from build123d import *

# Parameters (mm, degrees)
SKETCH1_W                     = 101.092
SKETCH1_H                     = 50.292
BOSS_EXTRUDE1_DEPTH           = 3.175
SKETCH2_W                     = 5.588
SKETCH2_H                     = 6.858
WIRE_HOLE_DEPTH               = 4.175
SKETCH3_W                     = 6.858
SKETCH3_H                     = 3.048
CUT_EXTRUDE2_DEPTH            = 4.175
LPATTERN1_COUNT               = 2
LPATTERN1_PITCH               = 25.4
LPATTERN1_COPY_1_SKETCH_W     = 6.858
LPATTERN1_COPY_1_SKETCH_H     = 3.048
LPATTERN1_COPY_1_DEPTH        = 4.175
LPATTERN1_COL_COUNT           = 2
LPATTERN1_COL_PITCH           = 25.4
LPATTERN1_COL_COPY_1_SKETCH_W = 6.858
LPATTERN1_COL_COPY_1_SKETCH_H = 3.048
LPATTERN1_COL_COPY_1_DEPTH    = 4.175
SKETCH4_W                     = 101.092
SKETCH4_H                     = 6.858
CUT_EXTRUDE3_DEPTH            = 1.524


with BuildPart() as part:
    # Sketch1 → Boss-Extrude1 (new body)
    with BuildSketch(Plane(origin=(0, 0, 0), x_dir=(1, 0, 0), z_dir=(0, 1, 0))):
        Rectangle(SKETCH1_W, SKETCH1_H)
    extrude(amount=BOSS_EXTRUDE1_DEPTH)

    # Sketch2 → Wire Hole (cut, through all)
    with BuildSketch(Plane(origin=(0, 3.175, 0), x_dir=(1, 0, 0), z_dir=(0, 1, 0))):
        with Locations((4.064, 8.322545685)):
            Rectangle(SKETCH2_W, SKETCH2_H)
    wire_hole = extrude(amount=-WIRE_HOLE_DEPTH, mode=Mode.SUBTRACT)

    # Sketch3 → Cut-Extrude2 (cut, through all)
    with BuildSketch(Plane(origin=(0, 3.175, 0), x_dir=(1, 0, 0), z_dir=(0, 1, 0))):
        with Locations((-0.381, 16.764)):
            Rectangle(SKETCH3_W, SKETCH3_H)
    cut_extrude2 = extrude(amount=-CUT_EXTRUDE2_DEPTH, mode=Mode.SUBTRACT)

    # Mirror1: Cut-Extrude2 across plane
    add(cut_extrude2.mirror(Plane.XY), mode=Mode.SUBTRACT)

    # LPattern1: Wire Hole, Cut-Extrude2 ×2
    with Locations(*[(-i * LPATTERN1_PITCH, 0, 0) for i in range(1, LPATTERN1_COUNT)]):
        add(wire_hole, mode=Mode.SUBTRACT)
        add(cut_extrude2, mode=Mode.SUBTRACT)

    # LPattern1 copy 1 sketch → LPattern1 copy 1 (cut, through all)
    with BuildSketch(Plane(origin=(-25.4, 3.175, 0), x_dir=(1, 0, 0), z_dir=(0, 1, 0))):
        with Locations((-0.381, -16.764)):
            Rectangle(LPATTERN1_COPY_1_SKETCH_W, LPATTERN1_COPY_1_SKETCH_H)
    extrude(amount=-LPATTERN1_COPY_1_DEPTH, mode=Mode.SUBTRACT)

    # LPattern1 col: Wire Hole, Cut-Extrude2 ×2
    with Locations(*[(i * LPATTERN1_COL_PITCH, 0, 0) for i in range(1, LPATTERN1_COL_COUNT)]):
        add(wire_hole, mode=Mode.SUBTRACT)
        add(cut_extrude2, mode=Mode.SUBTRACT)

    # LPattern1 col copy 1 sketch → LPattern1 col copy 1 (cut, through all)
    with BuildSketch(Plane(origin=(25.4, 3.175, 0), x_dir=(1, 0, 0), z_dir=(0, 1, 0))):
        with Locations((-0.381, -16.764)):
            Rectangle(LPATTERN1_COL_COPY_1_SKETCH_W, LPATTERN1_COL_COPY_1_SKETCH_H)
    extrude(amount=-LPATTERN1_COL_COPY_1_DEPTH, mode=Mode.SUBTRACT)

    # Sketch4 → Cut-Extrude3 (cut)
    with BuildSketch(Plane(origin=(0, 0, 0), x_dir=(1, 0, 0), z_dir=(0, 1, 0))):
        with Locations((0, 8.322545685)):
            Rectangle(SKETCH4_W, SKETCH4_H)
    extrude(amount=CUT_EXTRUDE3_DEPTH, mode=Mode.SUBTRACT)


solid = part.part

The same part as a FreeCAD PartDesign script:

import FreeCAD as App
import Part
import Sketcher

V = App.Vector
Q = App.Units.Quantity


def add_polygon(sketch, points):
    """Adds a closed chain of lines whose ends are joined by coincident constraints."""
    first, n = sketch.GeometryCount, len(points)
    for a, b in zip(points, points[1:] + points[:1]):
        sketch.addGeometry(Part.LineSegment(App.Vector(*a, 0), App.Vector(*b, 0)), False)
    for i in range(n):
        sketch.addConstraint(Sketcher.Constraint("Coincident", first + i, 2, first + (i + 1) % n, 1))

doc = App.newDocument("Part")
body = doc.addObject("PartDesign::Body", "Body")

sketch1 = body.newObject("Sketcher::SketchObject", "Sketch")
sketch1.AttachmentSupport = (doc.getObject("XZ_Plane"), [""])
sketch1.MapMode = "FlatFace"
add_polygon(sketch1, [(-51, -25), (-51, 25), (51, 25), (51, -25)])
sketch1.addConstraint(Sketcher.Constraint("Vertical", 0))
sketch1.addConstraint(Sketcher.Constraint("Horizontal", 1))
sketch1.addConstraint(Sketcher.Constraint("Vertical", 2))
sketch1.addConstraint(Sketcher.Constraint("Horizontal", 3))
sketch1.addConstraint(Sketcher.Constraint("Symmetric", 0, 2, 2, 2, -1, 1))
sketch1.addConstraint(Sketcher.Constraint("DistanceX", 1, 1, 1, 2, Q("3.98 in")))
sketch1.addConstraint(Sketcher.Constraint("DistanceY", 0, 1, 0, 2, Q("1.98 in")))
pad1 = body.newObject("PartDesign::Pad", "Pad")
pad1.Profile = sketch1
pad1.Length = Q("0.125 in")
pad1.Reversed = True

sketch2 = body.newObject("Sketcher::SketchObject", "Sketch001")
sketch2.AttachmentSupport = (doc.getObject("XZ_Plane"), [""])
sketch2.MapMode = "FlatFace"
sketch2.AttachmentOffset = App.Placement(V(0, 0, -0.125 * 25.4), App.Rotation())
add_polygon(sketch2, [(1, -12), (1, -5), (7, -5), (7, -12)])
sketch2.addConstraint(Sketcher.Constraint("Vertical", 0))
sketch2.addConstraint(Sketcher.Constraint("Horizontal", 1))
sketch2.addConstraint(Sketcher.Constraint("Vertical", 2))
sketch2.addConstraint(Sketcher.Constraint("Horizontal", 3))
sketch2.addConstraint(Sketcher.Constraint("DistanceX", 1, 1, 1, 2, Q("0.22 in")))
sketch2.addConstraint(Sketcher.Constraint("DistanceY", 0, 1, 0, 2, Q("0.27 in")))
sketch2.addConstraint(Sketcher.Constraint("DistanceX", -1, 1, 0, 2, Q("0.05 in")))
sketch2.addConstraint(Sketcher.Constraint("DistanceY", 0, 2, -1, 1, Q("4.893546 mm")))
pocket1 = body.newObject("PartDesign::Pocket", "Pocket")
pocket1.Profile = sketch2
pocket1.Type = "ThroughAll"
pocket1.Reversed = True

sketch3 = body.newObject("Sketcher::SketchObject", "Sketch002")
sketch3.AttachmentSupport = (doc.getObject("XZ_Plane"), [""])
sketch3.MapMode = "FlatFace"
sketch3.AttachmentOffset = App.Placement(V(0, 0, -0.125 * 25.4), App.Rotation())
add_polygon(sketch3, [(-3.8, -18.3), (-3.8, -15.2), (3, -15.2), (3, -18.3)])
sketch3.addConstraint(Sketcher.Constraint("Vertical", 0))
sketch3.addConstraint(Sketcher.Constraint("Horizontal", 1))
sketch3.addConstraint(Sketcher.Constraint("Vertical", 2))
sketch3.addConstraint(Sketcher.Constraint("Horizontal", 3))
sketch3.addConstraint(Sketcher.Constraint("DistanceX", 1, 1, 1, 2, Q("0.27 in")))
sketch3.addConstraint(Sketcher.Constraint("DistanceY", 0, 1, 0, 2, Q("0.12 in")))
sketch3.addConstraint(Sketcher.Constraint("DistanceY", 0, 2, -1, 1, Q("0.6 in")))
sketch3.addConstraint(Sketcher.Constraint("DistanceX", 0, 2, -1, 1, Q("0.15 in")))
pocket2 = body.newObject("PartDesign::Pocket", "Pocket001")
pocket2.Profile = sketch3
pocket2.Type = "ThroughAll"
pocket2.Reversed = True
doc.recompute()

mirrored = body.newObject("PartDesign::Mirrored", "Mirrored")
mirrored.Originals = [pocket2]
mirrored.MirrorPlane = (doc.getObject("XY_Plane"), [""])
body.Tip = mirrored
doc.recompute()

linearpattern = body.newObject("PartDesign::LinearPattern", "LinearPattern")
linearpattern.Originals = [pocket1, pocket2]
linearpattern.Direction = (doc.getObject("X_Axis"), [""])
linearpattern.Mode = "offset"
linearpattern.Offset = Q("1 in")
linearpattern.Occurrences = 2
linearpattern.Reversed = True
body.Tip = linearpattern

sketch4 = body.newObject("Sketcher::SketchObject", "Sketch003")
sketch4.AttachmentSupport = (doc.getObject("XZ_Plane"), [""])
sketch4.MapMode = "FlatFace"
sketch4.AttachmentOffset = App.Placement(V(0, 0, -0.125 * 25.4), App.Rotation())
add_polygon(sketch4, [(-29.2, 15.2), (-29.2, 18.3), (-22.4, 18.3), (-22.4, 15.2)])
sketch4.addConstraint(Sketcher.Constraint("Vertical", 0))
sketch4.addConstraint(Sketcher.Constraint("Horizontal", 1))
sketch4.addConstraint(Sketcher.Constraint("Vertical", 2))
sketch4.addConstraint(Sketcher.Constraint("Horizontal", 3))
sketch4.addConstraint(Sketcher.Constraint("DistanceX", 1, 1, 1, 2, Q("0.27 in")))
sketch4.addConstraint(Sketcher.Constraint("DistanceY", 0, 1, 0, 2, Q("0.12 in")))
sketch4.addConstraint(Sketcher.Constraint("DistanceY", -1, 1, 2, 2, Q("0.6 in")))
sketch4.addConstraint(Sketcher.Constraint("DistanceX", 0, 2, -1, 1, Q("1.15 in")))
pocket3 = body.newObject("PartDesign::Pocket", "Pocket002")
pocket3.Profile = sketch4
pocket3.Type = "ThroughAll"
pocket3.Reversed = True
doc.recompute()

linearpattern2 = body.newObject("PartDesign::LinearPattern", "LinearPattern001")
linearpattern2.Originals = [pocket1, pocket2]
linearpattern2.Direction = (doc.getObject("X_Axis"), [""])
linearpattern2.Mode = "offset"
linearpattern2.Offset = Q("1 in")
linearpattern2.Occurrences = 2
body.Tip = linearpattern2

sketch5 = body.newObject("Sketcher::SketchObject", "Sketch004")
sketch5.AttachmentSupport = (doc.getObject("XZ_Plane"), [""])
sketch5.MapMode = "FlatFace"
sketch5.AttachmentOffset = App.Placement(V(0, 0, -0.125 * 25.4), App.Rotation())
add_polygon(sketch5, [(21.6, 15.2), (21.6, 18.3), (28.4, 18.3), (28.4, 15.2)])
sketch5.addConstraint(Sketcher.Constraint("Vertical", 0))
sketch5.addConstraint(Sketcher.Constraint("Horizontal", 1))
sketch5.addConstraint(Sketcher.Constraint("Vertical", 2))
sketch5.addConstraint(Sketcher.Constraint("Horizontal", 3))
sketch5.addConstraint(Sketcher.Constraint("DistanceX", 1, 1, 1, 2, Q("0.27 in")))
sketch5.addConstraint(Sketcher.Constraint("DistanceY", 0, 1, 0, 2, Q("0.12 in")))
sketch5.addConstraint(Sketcher.Constraint("DistanceY", -1, 1, 2, 2, Q("0.6 in")))
sketch5.addConstraint(Sketcher.Constraint("DistanceX", -1, 1, 0, 2, Q("0.85 in")))
pocket4 = body.newObject("PartDesign::Pocket", "Pocket003")
pocket4.Profile = sketch5
pocket4.Type = "ThroughAll"
pocket4.Reversed = True

sketch6 = body.newObject("Sketcher::SketchObject", "Sketch005")
sketch6.AttachmentSupport = (doc.getObject("XZ_Plane"), [""])
sketch6.MapMode = "FlatFace"
add_polygon(sketch6, [(-51, -12), (-51, -5), (51, -5), (51, -12)])
sketch6.addConstraint(Sketcher.Constraint("Vertical", 0))
sketch6.addConstraint(Sketcher.Constraint("Horizontal", 1))
sketch6.addConstraint(Sketcher.Constraint("Vertical", 2))
sketch6.addConstraint(Sketcher.Constraint("Horizontal", 3))
sketch6.addConstraint(Sketcher.Constraint("DistanceX", 1, 1, 1, 2, Q("3.98 in")))
sketch6.addConstraint(Sketcher.Constraint("DistanceY", 0, 1, 0, 2, Q("0.27 in")))
sketch6.addConstraint(Sketcher.Constraint("DistanceX", 0, 2, -1, 1, Q("1.99 in")))
sketch6.addConstraint(Sketcher.Constraint("DistanceY", 0, 2, -1, 1, Q("4.893546 mm")))
pocket5 = body.newObject("PartDesign::Pocket", "Pocket004")
pocket5.Profile = sketch6
pocket5.Length = Q("0.06 in")

doc.recompute()
